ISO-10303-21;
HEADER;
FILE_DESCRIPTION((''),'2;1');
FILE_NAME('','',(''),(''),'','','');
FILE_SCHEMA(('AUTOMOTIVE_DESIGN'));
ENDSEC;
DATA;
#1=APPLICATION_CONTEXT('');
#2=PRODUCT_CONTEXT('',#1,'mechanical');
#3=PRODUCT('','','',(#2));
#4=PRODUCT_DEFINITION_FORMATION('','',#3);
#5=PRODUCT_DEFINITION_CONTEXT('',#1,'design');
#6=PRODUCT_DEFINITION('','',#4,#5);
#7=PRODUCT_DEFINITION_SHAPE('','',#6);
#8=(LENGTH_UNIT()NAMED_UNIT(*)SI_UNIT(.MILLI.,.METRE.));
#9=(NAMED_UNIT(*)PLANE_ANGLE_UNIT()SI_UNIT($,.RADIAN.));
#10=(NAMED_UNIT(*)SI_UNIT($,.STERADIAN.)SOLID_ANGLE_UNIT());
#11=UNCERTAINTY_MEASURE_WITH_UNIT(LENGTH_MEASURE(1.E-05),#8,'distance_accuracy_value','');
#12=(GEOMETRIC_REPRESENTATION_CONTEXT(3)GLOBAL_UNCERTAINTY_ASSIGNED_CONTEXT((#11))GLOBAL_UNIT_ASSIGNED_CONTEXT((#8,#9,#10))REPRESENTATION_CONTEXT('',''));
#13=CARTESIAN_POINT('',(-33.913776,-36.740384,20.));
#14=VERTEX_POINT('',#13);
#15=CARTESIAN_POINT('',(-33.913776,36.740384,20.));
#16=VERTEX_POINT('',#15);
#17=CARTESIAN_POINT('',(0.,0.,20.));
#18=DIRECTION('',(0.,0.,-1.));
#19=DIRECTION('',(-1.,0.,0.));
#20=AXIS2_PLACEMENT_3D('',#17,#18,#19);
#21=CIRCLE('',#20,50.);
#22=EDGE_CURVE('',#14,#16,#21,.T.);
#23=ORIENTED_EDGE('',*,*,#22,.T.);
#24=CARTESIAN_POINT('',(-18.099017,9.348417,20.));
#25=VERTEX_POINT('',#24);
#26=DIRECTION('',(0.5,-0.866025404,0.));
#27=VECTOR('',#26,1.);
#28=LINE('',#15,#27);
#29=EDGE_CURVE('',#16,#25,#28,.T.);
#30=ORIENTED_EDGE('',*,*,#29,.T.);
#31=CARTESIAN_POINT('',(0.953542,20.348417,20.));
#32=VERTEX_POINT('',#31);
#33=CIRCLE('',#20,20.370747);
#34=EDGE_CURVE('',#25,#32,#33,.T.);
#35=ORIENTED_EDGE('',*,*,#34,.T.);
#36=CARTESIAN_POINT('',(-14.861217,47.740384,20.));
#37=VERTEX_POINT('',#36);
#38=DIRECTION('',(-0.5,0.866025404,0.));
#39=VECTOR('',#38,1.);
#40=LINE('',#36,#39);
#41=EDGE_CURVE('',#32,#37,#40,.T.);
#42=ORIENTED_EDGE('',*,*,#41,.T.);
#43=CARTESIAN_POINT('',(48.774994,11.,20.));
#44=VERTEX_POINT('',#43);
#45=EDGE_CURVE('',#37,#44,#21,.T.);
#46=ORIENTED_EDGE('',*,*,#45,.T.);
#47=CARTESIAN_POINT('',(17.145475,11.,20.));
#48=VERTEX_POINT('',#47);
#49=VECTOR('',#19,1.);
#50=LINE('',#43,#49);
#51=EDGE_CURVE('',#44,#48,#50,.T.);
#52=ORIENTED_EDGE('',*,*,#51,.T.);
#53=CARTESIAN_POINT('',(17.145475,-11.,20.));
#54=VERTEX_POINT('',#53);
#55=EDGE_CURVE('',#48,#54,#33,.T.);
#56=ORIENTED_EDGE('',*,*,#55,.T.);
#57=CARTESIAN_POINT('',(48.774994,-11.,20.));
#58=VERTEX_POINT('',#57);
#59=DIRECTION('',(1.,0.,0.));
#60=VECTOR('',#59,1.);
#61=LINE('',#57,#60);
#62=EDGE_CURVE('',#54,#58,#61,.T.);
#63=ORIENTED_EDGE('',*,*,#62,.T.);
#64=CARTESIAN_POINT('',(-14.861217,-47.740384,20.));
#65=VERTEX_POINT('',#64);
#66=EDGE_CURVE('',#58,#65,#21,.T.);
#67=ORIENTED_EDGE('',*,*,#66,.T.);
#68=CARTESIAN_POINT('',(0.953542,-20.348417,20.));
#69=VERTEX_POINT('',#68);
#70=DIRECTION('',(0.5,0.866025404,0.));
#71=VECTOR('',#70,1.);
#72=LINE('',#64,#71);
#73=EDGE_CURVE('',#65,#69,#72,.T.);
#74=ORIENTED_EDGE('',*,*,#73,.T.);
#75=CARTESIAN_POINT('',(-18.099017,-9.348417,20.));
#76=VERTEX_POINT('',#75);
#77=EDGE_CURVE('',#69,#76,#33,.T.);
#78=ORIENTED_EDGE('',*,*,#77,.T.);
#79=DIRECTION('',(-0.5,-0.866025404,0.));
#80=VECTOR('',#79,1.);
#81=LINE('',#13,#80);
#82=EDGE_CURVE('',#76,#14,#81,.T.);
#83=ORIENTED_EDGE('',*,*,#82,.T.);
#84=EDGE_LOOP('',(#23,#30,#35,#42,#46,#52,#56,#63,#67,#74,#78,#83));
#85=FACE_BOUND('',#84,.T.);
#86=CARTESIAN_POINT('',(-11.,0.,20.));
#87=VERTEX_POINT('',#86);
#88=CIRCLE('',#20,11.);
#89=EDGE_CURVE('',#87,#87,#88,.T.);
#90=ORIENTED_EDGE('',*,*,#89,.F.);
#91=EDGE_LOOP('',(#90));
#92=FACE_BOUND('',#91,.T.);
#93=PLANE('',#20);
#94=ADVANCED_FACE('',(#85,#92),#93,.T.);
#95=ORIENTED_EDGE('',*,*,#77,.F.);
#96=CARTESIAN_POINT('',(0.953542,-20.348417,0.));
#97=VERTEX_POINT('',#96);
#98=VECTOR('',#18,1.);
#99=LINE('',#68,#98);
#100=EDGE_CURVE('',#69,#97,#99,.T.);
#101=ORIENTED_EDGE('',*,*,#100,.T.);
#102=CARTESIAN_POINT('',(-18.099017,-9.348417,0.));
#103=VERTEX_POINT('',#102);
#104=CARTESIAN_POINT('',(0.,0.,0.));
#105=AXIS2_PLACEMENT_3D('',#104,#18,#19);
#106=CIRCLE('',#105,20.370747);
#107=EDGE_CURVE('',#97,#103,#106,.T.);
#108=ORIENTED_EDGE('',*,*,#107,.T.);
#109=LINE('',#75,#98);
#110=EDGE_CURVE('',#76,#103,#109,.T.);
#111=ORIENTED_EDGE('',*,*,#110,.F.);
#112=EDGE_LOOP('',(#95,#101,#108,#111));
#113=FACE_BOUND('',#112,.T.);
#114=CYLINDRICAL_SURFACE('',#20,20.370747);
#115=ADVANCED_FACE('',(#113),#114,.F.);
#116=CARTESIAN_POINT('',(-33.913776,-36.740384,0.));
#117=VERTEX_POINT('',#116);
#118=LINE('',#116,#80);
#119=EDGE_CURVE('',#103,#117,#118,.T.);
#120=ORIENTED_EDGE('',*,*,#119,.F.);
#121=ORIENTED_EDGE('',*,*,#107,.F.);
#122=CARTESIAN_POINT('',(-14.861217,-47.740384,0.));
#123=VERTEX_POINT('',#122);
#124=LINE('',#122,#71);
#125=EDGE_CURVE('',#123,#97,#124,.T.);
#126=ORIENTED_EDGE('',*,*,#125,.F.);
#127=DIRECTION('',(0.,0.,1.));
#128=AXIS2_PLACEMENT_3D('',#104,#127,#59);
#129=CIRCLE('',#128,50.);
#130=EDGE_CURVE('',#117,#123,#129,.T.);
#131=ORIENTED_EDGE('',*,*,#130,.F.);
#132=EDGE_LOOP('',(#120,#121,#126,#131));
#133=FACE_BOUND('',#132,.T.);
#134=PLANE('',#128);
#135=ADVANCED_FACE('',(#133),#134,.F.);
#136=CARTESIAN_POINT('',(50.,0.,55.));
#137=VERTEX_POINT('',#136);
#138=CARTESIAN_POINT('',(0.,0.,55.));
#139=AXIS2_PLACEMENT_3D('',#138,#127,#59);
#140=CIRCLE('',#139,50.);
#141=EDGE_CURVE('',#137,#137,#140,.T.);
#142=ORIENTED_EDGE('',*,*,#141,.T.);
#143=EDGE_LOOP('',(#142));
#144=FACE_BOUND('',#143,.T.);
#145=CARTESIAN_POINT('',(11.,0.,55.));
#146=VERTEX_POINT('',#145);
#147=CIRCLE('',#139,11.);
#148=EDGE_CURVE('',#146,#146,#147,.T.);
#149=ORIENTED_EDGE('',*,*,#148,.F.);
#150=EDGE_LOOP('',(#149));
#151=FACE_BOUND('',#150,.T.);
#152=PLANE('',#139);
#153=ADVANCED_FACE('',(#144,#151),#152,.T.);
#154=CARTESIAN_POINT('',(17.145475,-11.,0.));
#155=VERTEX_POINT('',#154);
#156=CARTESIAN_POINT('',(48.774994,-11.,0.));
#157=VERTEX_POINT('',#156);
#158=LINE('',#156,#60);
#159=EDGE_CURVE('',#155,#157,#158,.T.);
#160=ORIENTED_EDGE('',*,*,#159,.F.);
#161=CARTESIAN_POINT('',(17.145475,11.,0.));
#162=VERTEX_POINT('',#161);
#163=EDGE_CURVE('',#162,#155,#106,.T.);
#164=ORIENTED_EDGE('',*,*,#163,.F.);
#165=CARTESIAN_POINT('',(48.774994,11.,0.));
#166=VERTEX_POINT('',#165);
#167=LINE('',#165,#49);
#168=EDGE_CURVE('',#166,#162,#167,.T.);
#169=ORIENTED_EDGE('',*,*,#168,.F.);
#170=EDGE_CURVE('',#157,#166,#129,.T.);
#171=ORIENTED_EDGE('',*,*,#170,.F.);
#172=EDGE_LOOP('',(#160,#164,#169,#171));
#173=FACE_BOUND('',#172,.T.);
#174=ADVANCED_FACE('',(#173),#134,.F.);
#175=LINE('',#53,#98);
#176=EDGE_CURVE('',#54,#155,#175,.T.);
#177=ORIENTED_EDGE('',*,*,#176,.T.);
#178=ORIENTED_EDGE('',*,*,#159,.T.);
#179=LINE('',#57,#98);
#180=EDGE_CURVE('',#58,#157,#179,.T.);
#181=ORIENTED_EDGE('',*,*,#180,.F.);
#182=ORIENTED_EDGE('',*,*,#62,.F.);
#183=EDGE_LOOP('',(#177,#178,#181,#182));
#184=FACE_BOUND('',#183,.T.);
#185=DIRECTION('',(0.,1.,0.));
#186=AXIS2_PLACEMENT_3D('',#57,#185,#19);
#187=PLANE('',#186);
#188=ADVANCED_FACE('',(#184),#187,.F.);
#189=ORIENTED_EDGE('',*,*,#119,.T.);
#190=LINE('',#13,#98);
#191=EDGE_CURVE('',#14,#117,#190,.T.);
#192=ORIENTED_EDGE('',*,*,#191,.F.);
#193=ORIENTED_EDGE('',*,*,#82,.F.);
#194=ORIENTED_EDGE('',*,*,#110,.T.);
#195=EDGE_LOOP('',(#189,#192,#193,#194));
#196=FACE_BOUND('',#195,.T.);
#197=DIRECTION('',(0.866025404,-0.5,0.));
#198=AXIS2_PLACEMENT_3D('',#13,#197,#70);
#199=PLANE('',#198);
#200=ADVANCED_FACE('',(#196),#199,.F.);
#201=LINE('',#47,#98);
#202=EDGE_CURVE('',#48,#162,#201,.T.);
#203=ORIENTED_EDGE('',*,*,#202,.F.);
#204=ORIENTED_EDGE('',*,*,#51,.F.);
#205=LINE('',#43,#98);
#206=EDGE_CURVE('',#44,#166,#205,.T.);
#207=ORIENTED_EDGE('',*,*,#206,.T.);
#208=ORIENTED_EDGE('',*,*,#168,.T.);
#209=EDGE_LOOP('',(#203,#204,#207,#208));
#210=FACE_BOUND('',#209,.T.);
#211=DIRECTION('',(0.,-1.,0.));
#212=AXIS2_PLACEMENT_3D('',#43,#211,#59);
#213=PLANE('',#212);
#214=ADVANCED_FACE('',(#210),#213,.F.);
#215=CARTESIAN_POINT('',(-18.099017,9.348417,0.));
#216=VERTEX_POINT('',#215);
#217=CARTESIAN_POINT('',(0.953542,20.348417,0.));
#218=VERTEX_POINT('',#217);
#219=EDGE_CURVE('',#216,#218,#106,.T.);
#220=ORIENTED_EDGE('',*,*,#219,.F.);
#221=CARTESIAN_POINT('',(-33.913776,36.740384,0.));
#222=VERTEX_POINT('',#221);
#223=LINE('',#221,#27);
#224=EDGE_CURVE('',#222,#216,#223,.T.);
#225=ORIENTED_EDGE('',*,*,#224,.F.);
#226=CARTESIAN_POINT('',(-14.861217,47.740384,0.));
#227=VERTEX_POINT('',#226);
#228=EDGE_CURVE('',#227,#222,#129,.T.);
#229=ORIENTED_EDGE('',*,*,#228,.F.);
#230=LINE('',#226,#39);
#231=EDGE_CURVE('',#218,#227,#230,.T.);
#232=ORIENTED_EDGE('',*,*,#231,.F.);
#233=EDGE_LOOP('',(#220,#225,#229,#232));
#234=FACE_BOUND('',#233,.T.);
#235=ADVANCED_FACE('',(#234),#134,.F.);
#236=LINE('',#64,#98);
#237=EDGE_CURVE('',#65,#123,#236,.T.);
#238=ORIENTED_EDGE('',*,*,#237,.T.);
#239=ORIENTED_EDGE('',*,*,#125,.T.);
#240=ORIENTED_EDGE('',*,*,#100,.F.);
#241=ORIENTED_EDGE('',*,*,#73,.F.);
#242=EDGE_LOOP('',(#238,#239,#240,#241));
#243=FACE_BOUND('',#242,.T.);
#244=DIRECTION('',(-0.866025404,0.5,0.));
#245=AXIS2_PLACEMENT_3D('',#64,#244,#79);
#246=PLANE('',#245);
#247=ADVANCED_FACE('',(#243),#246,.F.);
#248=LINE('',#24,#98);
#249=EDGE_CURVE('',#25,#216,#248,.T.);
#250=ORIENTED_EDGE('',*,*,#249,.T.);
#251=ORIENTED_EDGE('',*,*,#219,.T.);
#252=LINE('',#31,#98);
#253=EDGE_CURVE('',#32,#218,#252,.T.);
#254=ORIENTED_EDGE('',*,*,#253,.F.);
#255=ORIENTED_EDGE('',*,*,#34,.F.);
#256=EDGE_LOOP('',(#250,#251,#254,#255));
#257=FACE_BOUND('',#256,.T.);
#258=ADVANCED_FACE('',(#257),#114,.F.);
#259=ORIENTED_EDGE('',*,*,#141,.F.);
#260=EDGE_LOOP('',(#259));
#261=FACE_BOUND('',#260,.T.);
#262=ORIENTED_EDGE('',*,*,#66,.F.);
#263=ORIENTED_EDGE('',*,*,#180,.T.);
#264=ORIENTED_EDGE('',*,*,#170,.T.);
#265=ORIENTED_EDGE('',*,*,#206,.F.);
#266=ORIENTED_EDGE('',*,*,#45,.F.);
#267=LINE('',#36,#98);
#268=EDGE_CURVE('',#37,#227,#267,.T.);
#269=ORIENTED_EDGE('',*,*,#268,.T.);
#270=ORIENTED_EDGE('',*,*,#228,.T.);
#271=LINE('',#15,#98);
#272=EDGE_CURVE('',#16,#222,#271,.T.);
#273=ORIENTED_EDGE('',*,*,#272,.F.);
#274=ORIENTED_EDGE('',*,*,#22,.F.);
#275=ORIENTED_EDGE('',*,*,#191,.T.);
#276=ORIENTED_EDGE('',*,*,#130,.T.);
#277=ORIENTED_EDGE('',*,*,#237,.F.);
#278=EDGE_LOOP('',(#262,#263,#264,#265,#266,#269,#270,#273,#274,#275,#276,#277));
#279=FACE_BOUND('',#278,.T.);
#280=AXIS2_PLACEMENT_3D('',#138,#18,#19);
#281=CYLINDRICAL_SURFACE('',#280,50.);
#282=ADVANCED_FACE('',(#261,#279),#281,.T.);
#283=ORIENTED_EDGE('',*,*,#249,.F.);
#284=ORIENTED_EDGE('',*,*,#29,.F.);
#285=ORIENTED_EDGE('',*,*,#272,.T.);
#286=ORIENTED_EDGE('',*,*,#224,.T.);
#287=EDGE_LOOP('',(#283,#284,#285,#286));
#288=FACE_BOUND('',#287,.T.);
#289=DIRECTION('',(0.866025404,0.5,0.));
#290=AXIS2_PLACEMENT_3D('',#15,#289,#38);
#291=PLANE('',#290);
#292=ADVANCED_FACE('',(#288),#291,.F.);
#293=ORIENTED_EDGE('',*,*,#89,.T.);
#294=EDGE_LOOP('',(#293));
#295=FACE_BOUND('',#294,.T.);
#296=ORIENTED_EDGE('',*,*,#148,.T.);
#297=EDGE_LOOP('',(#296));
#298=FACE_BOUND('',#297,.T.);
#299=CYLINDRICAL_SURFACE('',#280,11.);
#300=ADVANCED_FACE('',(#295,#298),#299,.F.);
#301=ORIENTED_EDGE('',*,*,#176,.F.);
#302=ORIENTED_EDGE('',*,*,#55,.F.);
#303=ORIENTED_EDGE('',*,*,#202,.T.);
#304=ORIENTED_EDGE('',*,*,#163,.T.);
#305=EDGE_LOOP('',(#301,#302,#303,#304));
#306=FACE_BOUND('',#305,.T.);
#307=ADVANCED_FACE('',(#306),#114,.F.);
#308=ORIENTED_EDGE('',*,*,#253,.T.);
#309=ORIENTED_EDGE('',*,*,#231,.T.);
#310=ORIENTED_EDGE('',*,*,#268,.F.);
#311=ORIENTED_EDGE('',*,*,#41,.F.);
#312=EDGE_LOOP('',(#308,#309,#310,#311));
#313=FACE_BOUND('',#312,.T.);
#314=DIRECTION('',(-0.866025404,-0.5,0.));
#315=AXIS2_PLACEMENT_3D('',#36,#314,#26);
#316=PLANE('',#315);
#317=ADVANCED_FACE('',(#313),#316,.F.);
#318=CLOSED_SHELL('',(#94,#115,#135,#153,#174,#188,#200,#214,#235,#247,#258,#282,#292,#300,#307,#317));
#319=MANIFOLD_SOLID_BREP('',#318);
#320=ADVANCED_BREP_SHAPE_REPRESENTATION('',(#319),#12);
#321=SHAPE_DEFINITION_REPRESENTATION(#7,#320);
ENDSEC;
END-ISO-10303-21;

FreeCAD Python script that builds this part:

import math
import FreeCAD as App
import Part
import Sketcher
Q = App.Units.Quantity

doc = App.newDocument("Part")
body = doc.addObject("PartDesign::Body", "Body")

# Sketch on XY plane
sketch1 = body.newObject("Sketcher::SketchObject", "Sketch")
sketch1.AttachmentSupport = (doc.getObject("XY_Plane"), [""])
sketch1.MapMode = "FlatFace"
sketch1.addGeometry([
    Part.Circle(App.Vector(0, 0, 0), App.Vector(0, 0, 1), 50),
    Part.Circle(App.Vector(0, 0, 0), App.Vector(0, 0, 1), 11),
], False)
sketch1.addConstraint([
    Sketcher.Constraint("Coincident", 0, 3, -1, 1),
    Sketcher.Constraint("Coincident", 1, 3, -1, 1),
    Sketcher.Constraint("Diameter", 0, Q("100 mm")),
    Sketcher.Constraint("Diameter", 1, Q("22 mm")),
])
pad1 = body.newObject("PartDesign::Pad", "Pad")
pad1.Profile = sketch1
pad1.Length = 55

# Sketch on XY plane
sketch2 = body.newObject("Sketcher::SketchObject", "Sketch001")
sketch2.AttachmentSupport = (doc.getObject("XY_Plane"), [""])
sketch2.MapMode = "FlatFace"
sketch2.addGeometry([
    Part.LineSegment(App.Vector(17.145475, -11, 0), App.Vector(48.774994, -11, 0)),  # 0
    Part.ArcOfCircle(Part.Circle(App.Vector(0, 0, 0), App.Vector(0, 0, 1), 50), math.radians(-107.290967), math.radians(-12.709033)),  # 1
    Part.LineSegment(App.Vector(-14.861217, -47.740384, 0), App.Vector(0.953542, -20.348417, 0)),  # 2
    Part.ArcOfCircle(Part.Circle(App.Vector(0, 0, 0), App.Vector(0, 0, 1), 20.370747), math.radians(-152.682959), math.radians(-87.317041)),  # 3
    Part.LineSegment(App.Vector(-18.099017, -9.348417, 0), App.Vector(-33.913776, -36.740384, 0)),  # 4
    Part.ArcOfCircle(Part.Circle(App.Vector(0, 0, 0), App.Vector(0, 0, 1), 50), math.radians(132.709033), math.radians(227.290967)),  # 5
    Part.LineSegment(App.Vector(-33.913776, 36.740384, 0), App.Vector(-18.099017, 9.348417, 0)),  # 6
    Part.ArcOfCircle(Part.Circle(App.Vector(0, 0, 0), App.Vector(0, 0, 1), 20.370747), math.radians(87.317041), math.radians(152.682959)),  # 7
    Part.LineSegment(App.Vector(0.953542, 20.348417, 0), App.Vector(-14.861217, 47.740384, 0)),  # 8
    Part.ArcOfCircle(Part.Circle(App.Vector(0, 0, 0), App.Vector(0, 0, 1), 50), math.radians(12.709033), math.radians(107.290967)),  # 9
    Part.LineSegment(App.Vector(48.774994, 11, 0), App.Vector(17.145475, 11, 0)),  # 10
    Part.ArcOfCircle(Part.Circle(App.Vector(0, 0, 0), App.Vector(0, 0, 1), 20.370747), math.radians(-32.682959), math.radians(32.682959)),  # 11
], False)
sketch2.addConstraint([
    Sketcher.Constraint("Coincident", 0, 2, 1, 2),
    Sketcher.Constraint("Coincident", 1, 1, 2, 1),
    Sketcher.Constraint("Coincident", 2, 2, 3, 2),
    Sketcher.Constraint("Coincident", 3, 1, 4, 1),
    Sketcher.Constraint("Coincident", 4, 2, 5, 2),
    Sketcher.Constraint("Coincident", 5, 1, 6, 1),
    Sketcher.Constraint("Coincident", 6, 2, 7, 2),
    Sketcher.Constraint("Coincident", 7, 1, 8, 1),
    Sketcher.Constraint("Coincident", 8, 2, 9, 2),
    Sketcher.Constraint("Coincident", 9, 1, 10, 1),
    Sketcher.Constraint("Coincident", 10, 2, 11, 2),
    Sketcher.Constraint("Coincident", 11, 1, 0, 1),
    Sketcher.Constraint("Horizontal", 0),
    Sketcher.Constraint("Horizontal", 10),
    Sketcher.Constraint("Coincident", 1, 3, -1, 1),
    Sketcher.Constraint("Coincident", 3, 3, -1, 1),
    Sketcher.Constraint("Coincident", 5, 3, -1, 1),
    Sketcher.Constraint("Coincident", 7, 3, -1, 1),
    Sketcher.Constraint("Coincident", 9, 3, -1, 1),
    Sketcher.Constraint("Coincident", 11, 3, -1, 1),
    Sketcher.Constraint("Equal", 1, 5),
    Sketcher.Constraint("Equal", 3, 7),
    Sketcher.Constraint("Equal", 5, 9),
    Sketcher.Constraint("Equal", 7, 11),
    Sketcher.Constraint("Parallel", 2, 4),
    Sketcher.Constraint("Parallel", 6, 8),
    Sketcher.Constraint("Vertical", 4, 2, 5, 1),
    Sketcher.Constraint("Vertical", 3, 1, 6, 2),
    Sketcher.Constraint("Vertical", 2, 2, 7, 1),
    Sketcher.Constraint("Vertical", 0, 2, 9, 1),
    Sketcher.Constraint("Equal", 2, 4),
    Sketcher.Constraint("Radius", 1, Q("50 mm")),
    Sketcher.Constraint("Angle", 2, Q("60 deg")),
    Sketcher.Constraint("DistanceY", 0, 2, -1, 1, Q("11 mm")),
    Sketcher.Constraint("DistanceY", 1, 1, 4, 2, Q("11 mm")),
    Sketcher.Constraint("Radius", 3, Q("20.370747 mm")),
])
pocket1 = body.newObject("PartDesign::Pocket", "Pocket")
pocket1.Profile = sketch2
pocket1.Length = 20
pocket1.Reversed = True

doc.recompute()
